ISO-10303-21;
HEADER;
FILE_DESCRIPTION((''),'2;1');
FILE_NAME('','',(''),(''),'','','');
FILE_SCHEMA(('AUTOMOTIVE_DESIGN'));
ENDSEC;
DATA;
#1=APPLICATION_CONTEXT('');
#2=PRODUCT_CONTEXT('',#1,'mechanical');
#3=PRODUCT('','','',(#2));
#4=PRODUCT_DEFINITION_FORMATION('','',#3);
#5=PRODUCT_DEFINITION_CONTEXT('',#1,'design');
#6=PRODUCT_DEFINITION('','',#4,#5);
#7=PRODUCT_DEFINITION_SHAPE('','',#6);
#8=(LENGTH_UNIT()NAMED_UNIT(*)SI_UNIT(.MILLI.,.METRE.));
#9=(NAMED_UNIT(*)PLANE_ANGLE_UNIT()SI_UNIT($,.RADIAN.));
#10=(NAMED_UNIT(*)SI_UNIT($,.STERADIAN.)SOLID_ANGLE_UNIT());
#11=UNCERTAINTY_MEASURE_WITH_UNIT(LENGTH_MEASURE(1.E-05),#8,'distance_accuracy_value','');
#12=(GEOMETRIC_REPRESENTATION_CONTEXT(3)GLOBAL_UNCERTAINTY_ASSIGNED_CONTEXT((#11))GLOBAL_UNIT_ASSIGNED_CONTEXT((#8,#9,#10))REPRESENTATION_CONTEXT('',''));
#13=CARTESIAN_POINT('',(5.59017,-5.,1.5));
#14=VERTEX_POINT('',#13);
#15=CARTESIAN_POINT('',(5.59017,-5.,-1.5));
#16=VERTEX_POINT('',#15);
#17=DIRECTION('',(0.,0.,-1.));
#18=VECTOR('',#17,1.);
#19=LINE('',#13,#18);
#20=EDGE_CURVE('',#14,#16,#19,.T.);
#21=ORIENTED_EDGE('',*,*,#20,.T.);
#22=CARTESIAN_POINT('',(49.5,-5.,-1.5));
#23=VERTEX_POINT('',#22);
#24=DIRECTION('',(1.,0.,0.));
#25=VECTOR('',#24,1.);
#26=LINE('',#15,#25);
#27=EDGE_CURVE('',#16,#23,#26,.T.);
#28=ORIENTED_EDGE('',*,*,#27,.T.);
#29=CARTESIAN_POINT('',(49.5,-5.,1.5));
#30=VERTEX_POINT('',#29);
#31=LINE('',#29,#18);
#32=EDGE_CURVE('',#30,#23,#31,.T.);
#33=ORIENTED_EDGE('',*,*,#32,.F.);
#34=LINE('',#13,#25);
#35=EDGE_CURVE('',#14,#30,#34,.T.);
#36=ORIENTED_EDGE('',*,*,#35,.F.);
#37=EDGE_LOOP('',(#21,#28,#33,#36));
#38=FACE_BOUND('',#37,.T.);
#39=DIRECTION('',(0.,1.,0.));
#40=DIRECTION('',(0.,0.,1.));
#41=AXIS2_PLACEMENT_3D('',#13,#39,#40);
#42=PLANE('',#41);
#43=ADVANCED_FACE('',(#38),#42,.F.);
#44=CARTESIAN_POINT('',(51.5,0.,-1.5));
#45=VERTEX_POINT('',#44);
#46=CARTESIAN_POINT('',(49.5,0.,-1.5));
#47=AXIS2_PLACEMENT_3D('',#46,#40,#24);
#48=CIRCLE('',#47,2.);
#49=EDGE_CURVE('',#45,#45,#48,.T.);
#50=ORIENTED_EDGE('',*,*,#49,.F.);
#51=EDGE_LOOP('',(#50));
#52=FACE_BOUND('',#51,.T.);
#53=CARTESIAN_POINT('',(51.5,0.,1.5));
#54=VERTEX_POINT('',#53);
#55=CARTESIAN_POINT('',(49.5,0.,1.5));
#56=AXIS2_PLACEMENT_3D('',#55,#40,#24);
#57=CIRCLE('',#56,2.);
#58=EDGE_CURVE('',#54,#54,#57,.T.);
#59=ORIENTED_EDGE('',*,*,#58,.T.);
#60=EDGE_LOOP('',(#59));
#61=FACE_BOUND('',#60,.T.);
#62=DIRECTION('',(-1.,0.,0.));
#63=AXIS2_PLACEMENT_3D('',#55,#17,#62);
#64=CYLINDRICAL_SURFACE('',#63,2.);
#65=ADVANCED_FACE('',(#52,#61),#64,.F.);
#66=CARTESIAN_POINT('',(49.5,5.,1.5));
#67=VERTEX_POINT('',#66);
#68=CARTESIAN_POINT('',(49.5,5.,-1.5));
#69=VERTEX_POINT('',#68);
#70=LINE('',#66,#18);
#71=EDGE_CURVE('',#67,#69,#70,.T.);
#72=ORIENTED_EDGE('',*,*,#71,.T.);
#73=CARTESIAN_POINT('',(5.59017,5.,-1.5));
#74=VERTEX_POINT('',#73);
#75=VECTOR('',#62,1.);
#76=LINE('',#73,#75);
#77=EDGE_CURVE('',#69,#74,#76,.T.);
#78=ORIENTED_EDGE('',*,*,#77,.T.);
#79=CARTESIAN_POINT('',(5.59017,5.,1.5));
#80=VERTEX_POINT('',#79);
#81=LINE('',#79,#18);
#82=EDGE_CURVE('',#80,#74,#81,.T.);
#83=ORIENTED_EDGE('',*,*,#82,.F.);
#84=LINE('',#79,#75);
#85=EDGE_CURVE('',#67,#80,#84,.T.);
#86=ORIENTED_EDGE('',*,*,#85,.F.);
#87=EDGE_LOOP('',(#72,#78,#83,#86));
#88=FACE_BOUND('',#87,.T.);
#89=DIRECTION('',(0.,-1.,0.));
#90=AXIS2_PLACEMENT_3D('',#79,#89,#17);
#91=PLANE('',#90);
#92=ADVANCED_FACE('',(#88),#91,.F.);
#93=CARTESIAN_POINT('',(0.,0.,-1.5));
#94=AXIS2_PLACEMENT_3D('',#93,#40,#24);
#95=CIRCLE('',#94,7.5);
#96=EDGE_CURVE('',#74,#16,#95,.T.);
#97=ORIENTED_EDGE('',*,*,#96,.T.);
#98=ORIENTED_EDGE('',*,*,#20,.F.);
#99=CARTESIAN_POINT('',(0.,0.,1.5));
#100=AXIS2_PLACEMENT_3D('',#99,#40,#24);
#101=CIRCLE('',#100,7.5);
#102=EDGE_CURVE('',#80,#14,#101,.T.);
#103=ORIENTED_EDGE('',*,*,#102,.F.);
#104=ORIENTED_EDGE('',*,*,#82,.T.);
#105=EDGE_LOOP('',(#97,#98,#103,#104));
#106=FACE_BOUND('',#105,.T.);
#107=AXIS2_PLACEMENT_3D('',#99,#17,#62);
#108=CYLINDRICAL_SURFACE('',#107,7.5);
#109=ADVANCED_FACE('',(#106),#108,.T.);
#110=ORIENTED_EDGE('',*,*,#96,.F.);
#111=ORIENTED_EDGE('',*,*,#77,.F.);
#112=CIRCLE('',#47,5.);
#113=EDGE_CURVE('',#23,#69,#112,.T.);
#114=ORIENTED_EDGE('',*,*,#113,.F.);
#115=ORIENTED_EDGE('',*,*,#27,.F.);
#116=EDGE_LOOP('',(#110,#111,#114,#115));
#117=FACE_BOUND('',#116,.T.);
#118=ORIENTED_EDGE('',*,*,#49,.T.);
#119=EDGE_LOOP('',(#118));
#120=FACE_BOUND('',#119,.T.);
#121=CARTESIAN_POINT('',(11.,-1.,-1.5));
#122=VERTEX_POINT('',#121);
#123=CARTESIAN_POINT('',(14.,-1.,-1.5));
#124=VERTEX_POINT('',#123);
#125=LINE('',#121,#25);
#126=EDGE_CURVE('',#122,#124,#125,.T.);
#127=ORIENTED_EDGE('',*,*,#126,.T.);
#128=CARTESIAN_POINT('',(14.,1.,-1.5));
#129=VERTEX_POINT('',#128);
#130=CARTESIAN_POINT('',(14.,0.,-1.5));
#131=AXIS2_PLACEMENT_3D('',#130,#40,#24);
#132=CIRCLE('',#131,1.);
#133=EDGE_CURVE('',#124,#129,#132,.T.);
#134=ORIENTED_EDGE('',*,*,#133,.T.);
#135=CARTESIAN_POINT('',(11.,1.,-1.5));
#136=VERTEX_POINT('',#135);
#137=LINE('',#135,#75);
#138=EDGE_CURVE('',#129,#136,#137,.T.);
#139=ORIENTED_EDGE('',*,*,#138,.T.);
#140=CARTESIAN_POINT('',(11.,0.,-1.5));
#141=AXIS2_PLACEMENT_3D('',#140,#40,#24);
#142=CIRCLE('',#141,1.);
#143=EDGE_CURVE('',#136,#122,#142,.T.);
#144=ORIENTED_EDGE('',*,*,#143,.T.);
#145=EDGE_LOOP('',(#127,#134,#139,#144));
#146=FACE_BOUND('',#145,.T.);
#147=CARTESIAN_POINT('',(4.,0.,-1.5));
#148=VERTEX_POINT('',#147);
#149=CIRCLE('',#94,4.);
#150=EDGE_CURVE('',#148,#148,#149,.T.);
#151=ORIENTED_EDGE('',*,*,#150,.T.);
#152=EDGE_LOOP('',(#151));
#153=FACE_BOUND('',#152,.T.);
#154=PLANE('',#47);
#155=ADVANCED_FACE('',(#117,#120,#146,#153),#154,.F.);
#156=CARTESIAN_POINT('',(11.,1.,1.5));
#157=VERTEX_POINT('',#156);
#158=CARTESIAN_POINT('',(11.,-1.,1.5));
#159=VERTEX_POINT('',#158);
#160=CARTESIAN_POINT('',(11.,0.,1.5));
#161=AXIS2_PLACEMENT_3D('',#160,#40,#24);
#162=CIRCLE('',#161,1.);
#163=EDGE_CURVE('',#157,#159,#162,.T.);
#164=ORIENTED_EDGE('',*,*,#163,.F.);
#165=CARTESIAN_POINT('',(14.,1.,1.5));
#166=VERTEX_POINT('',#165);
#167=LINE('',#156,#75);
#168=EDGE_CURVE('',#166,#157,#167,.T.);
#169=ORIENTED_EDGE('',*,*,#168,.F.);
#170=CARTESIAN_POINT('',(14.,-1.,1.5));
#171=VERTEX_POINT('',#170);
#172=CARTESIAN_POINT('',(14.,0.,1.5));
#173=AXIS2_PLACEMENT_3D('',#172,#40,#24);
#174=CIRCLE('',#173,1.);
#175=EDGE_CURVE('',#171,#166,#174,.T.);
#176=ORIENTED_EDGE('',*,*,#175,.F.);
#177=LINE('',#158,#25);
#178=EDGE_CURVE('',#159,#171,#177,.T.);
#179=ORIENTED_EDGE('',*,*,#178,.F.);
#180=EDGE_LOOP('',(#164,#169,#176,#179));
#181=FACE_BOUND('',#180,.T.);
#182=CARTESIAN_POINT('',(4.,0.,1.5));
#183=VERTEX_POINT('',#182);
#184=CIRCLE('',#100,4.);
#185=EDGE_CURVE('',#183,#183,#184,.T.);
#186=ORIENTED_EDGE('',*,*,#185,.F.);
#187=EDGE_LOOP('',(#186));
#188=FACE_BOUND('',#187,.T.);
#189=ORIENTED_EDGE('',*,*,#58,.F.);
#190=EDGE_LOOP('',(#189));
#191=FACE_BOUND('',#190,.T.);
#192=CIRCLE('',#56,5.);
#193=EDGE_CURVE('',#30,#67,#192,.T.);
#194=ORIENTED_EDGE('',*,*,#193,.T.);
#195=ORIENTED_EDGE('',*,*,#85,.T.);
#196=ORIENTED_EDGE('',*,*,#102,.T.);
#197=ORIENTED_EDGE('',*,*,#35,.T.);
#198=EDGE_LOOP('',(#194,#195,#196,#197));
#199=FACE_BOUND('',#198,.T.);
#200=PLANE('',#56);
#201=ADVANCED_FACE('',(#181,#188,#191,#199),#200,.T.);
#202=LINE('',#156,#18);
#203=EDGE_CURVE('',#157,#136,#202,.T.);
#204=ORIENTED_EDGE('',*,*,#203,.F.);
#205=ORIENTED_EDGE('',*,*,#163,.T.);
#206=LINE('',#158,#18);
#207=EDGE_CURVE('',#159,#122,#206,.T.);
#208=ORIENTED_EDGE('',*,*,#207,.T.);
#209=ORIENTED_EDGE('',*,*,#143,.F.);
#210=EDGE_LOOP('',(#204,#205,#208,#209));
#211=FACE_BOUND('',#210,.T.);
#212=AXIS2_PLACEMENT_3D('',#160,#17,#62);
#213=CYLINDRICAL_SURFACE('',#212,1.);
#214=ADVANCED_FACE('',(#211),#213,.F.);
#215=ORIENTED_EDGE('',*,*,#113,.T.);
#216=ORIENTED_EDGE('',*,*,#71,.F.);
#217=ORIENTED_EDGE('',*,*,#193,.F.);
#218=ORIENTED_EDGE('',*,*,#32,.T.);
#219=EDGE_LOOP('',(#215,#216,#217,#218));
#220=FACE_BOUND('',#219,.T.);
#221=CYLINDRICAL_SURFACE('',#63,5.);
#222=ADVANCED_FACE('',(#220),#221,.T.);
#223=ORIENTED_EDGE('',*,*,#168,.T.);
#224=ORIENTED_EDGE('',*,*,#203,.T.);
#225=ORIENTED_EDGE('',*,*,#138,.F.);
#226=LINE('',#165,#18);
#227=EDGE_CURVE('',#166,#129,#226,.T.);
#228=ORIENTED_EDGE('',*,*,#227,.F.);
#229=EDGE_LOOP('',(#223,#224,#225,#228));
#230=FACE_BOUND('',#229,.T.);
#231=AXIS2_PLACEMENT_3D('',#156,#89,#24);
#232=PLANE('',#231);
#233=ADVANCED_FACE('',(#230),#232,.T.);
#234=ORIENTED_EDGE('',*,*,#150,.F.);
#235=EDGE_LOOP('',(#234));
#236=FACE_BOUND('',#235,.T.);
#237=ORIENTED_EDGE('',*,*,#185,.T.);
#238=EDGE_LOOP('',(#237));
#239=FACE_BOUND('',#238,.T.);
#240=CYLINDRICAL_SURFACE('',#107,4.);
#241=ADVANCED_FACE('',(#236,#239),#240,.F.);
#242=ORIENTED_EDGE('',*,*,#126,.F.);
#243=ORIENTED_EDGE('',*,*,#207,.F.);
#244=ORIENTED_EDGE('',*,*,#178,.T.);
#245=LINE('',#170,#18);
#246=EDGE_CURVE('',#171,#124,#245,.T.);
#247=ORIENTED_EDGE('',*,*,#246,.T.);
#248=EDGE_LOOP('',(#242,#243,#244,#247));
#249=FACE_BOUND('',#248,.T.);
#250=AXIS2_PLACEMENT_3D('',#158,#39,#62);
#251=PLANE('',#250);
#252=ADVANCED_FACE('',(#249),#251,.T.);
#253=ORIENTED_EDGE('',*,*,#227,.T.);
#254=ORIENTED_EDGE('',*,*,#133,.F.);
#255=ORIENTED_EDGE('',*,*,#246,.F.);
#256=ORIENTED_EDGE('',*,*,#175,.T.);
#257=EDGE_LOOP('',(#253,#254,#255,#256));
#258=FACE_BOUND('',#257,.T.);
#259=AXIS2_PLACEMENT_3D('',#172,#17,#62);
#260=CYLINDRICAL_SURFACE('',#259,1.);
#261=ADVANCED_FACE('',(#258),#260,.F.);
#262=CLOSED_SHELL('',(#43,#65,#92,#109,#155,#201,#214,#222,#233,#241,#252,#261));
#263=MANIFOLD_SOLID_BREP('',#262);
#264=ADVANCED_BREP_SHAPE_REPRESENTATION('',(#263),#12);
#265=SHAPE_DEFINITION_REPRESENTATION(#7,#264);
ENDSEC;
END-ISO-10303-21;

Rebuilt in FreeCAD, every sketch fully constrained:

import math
import FreeCAD as App
import Part
import Sketcher

V = App.Vector

doc = App.newDocument("Part")
body = doc.addObject("PartDesign::Body", "Body")

# Sketch on XY plane
sketch1 = body.newObject("Sketcher::SketchObject", "Sketch")
sketch1.AttachmentSupport = (doc.getObject("XY_Plane"), [""])
sketch1.MapMode = "FlatFace"
sketch1.addGeometry(Part.LineSegment(V(49.5, 5, 0), V(5.59017, 5, 0)), False)
sketch1.addGeometry(Part.ArcOfCircle(Part.Circle(V(0, 0, 0), V(0, 0, 1), 7.5), math.radians(41.810315), math.radians(318.189685)), False)
sketch1.addGeometry(Part.LineSegment(V(5.59017, -5, 0), V(49.5, -5, 0)), False)
sketch1.addGeometry(Part.ArcOfCircle(Part.Circle(V(49.5, 0, 0), V(0, 0, 1), 5), math.radians(-90), math.radians(90)), False)
sketch1.addGeometry(Part.Circle(V(49.5, 0, 0), V(0, 0, 1), 2), False)
sketch1.addGeometry(Part.LineSegment(V(11, 1, 0), V(14, 1, 0)), False)
sketch1.addGeometry(Part.ArcOfCircle(Part.Circle(V(14, 0, 0), V(0, 0, 1), 1), math.radians(-90), math.radians(90)), False)
sketch1.addGeometry(Part.LineSegment(V(14, -1, 0), V(11, -1, 0)), False)
sketch1.addGeometry(Part.ArcOfCircle(Part.Circle(V(11, 0, 0), V(0, 0, 1), 1), math.radians(90), math.radians(270)), False)
sketch1.addGeometry(Part.Circle(V(0, 0, 0), V(0, 0, 1), 4), False)
sketch1.addConstraint(Sketcher.Constraint("Coincident", 0, 2, 1, 1))
sketch1.addConstraint(Sketcher.Constraint("Coincident", 1, 2, 2, 1))
sketch1.addConstraint(Sketcher.Constraint("Tangent", 2, 2, 3, 1))
sketch1.addConstraint(Sketcher.Constraint("Tangent", 3, 2, 0, 1))
sketch1.addConstraint(Sketcher.Constraint("Tangent", 5, 2, 6, 2))
sketch1.addConstraint(Sketcher.Constraint("Tangent", 6, 1, 7, 1))
sketch1.addConstraint(Sketcher.Constraint("Tangent", 7, 2, 8, 2))
sketch1.addConstraint(Sketcher.Constraint("Tangent", 8, 1, 5, 1))
sketch1.addConstraint(Sketcher.Constraint("Horizontal", 0))
sketch1.addConstraint(Sketcher.Constraint("Horizontal", 2))
sketch1.addConstraint(Sketcher.Constraint("Horizontal", 5))
sketch1.addConstraint(Sketcher.Constraint("Horizontal", 7))
sketch1.addConstraint(Sketcher.Constraint("Coincident", 1, 3, -1, 1))
sketch1.addConstraint(Sketcher.Constraint("Coincident", 9, 3, -1, 1))
sketch1.addConstraint(Sketcher.Constraint("Coincident", 4, 3, 3, 3))
sketch1.addConstraint(Sketcher.Constraint("PointOnObject", 3, 3, -1))
sketch1.addConstraint(Sketcher.Constraint("PointOnObject", 6, 3, -1))
sketch1.addConstraint(Sketcher.Constraint("Diameter", 4, 4.0))
sketch1.addConstraint(Sketcher.Constraint("Diameter", 9, 8.0))
sketch1.addConstraint(Sketcher.Constraint("Radius", 3, 5.0))
sketch1.addConstraint(Sketcher.Constraint("Radius", 6, 1.0))
sketch1.addConstraint(Sketcher.Constraint("Radius", 1, 7.5))
sketch1.addConstraint(Sketcher.Constraint("DistanceX", 5, 1, 5, 2, 3.0))
sketch1.addConstraint(Sketcher.Constraint("DistanceX", -1, 1, 6, 3, 14.0))
sketch1.addConstraint(Sketcher.Constraint("DistanceX", -1, 1, 3, 3, 49.5))
pad1 = body.newObject("PartDesign::Pad", "Pad")
pad1.Profile = sketch1
pad1.Length = 3
pad1.Midplane = True

doc.recompute()
